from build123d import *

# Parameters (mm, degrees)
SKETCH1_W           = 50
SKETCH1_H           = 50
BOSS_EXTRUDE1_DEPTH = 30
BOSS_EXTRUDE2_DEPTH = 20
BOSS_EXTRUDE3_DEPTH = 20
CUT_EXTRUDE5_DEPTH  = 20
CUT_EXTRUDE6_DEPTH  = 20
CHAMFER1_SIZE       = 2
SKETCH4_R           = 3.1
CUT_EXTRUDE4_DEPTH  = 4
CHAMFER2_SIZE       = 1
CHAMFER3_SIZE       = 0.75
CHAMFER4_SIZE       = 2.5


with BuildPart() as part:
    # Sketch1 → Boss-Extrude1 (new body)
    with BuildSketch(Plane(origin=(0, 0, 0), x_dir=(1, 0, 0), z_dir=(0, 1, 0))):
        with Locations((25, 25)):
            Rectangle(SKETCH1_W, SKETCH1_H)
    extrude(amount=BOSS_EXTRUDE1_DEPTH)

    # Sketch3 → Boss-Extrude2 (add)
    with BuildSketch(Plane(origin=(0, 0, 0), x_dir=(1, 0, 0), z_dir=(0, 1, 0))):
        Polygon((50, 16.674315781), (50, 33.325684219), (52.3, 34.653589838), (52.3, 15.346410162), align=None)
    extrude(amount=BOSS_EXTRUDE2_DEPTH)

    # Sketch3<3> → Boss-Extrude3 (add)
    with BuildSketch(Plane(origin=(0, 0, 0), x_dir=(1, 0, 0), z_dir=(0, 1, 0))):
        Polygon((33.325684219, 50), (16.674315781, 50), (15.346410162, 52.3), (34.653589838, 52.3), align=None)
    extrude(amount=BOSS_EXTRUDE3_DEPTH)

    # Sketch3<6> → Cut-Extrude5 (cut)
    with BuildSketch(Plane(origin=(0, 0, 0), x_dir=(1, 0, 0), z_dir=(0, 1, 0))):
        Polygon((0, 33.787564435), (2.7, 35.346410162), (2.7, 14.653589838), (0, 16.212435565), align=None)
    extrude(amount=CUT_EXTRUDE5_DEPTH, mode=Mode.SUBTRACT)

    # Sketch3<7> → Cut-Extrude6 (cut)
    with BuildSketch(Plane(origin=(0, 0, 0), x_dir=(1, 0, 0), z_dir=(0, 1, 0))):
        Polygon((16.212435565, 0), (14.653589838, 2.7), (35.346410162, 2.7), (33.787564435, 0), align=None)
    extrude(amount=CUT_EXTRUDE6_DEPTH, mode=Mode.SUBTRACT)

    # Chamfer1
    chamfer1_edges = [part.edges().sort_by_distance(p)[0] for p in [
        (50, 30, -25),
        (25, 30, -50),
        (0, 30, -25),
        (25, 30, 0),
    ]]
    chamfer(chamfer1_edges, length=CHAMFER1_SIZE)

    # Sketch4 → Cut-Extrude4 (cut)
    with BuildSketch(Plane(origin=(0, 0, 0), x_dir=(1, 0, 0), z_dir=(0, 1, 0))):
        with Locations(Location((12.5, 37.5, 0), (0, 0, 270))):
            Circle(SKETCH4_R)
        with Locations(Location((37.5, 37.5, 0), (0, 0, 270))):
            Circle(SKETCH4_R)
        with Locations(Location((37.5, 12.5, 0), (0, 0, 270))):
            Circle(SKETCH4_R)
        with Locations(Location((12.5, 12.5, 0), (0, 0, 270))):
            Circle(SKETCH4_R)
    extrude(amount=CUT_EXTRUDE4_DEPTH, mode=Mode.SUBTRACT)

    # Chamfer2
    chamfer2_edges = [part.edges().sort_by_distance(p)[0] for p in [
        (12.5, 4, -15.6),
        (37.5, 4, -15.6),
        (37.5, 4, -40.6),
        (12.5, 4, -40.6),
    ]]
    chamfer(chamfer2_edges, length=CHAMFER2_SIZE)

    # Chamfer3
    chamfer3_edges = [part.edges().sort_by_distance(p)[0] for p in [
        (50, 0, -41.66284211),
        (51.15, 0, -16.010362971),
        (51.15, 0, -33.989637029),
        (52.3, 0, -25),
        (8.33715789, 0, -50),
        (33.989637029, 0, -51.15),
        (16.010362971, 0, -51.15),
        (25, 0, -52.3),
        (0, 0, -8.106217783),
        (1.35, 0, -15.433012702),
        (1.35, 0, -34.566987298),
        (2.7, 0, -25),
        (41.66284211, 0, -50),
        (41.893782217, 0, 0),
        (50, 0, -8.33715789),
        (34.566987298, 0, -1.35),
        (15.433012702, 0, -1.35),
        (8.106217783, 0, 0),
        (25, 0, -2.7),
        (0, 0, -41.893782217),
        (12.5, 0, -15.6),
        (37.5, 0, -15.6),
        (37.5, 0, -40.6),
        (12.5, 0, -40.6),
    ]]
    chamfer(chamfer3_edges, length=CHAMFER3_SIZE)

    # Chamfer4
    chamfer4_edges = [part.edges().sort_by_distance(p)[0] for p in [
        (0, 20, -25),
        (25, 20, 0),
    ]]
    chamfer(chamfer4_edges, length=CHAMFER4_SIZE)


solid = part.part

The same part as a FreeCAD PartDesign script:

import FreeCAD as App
import Part
import Sketcher
Q = App.Units.Quantity


def edges_at(feature, points):
    """Names of the edges that pass closest to the given points."""
    edges = feature.Shape.Edges
    near = lambda p: min(range(len(edges)), key=lambda i: edges[i].distToShape(Part.Vertex(*p))[0])
    return sorted({f"Edge{near(p) + 1}" for p in points})


def add_polygon(sketch, points):
    """Adds a closed chain of lines whose ends are joined by coincident constraints."""
    first, n = sketch.GeometryCount, len(points)
    for a, b in zip(points, points[1:] + points[:1]):
        sketch.addGeometry(Part.LineSegment(App.Vector(*a, 0), App.Vector(*b, 0)), False)
    for i in range(n):
        sketch.addConstraint(Sketcher.Constraint("Coincident", first + i, 2, first + (i + 1) % n, 1))

doc = App.newDocument("Part")
params = doc.addObject("Spreadsheet::Sheet", "Params")
for row, (alias, value) in enumerate([
    ("sketch1_width", "50 mm"),
    ("pad1_length", "30 mm"),
    ("pad2_length", "20 mm"),
    ("pad3_length", "20 mm"),
    ("pocket1_length", "20 mm"),
    ("pocket2_length", "20 mm"),
    ("chamfer_size", "2 mm"),
    ("sketch6_diameter", "6.2 mm"),
    ("pocket3_length", "4 mm"),
    ("chamfer2_size", "1 mm"),
    ("chamfer3_size", "0.75 mm"),
    ("chamfer4_size", "2.5 mm"),
], start=1):
    params.set(f"A{row}", alias)
    params.set(f"B{row}", "=" + value)
    params.setAlias(f"B{row}", alias)

body = doc.addObject("PartDesign::Body", "Body")

sketch1 = body.newObject("Sketcher::SketchObject", "Sketch")
sketch1.AttachmentSupport = (doc.getObject("XZ_Plane"), [""])
sketch1.MapMode = "FlatFace"
add_polygon(sketch1, [(0, -50), (0, 0), (50, 0), (50, -50)])
sketch1.addConstraint([
    Sketcher.Constraint("Vertical", 0),
    Sketcher.Constraint("Horizontal", 1),
    Sketcher.Constraint("Vertical", 2),
    Sketcher.Constraint("Horizontal", 3),
    Sketcher.Constraint("Coincident", 0, 2, -1, 1),
    Sketcher.Constraint("Equal", 3, 0),
    Sketcher.Constraint("DistanceX", 1, 1, 1, 2, 50.0),
])
sketch1.setExpression("Constraints[10]", "Params.sketch1_width")
pad1 = body.newObject("PartDesign::Pad", "Pad")
pad1.Profile = sketch1
pad1.setExpression("Length", "Params.pad1_length")
pad1.Reversed = True

sketch2 = body.newObject("Sketcher::SketchObject", "Sketch001")
sketch2.AttachmentSupport = (doc.getObject("XZ_Plane"), [""])
sketch2.MapMode = "FlatFace"
add_polygon(sketch2, [(50, -33.3), (50, -16.7), (52.3, -15.3), (52.3, -34.7)])
sketch2.addConstraint([
    Sketcher.Constraint("Vertical", 0),
    Sketcher.Constraint("Vertical", 2),
    Sketcher.Constraint("Equal", 1, 3),
    Sketcher.Constraint("Angle", 1, Q("30 deg")),
    Sketcher.Constraint("DistanceX", -1, 1, 0, 2, 50.0),
    Sketcher.Constraint("DistanceX", -1, 1, 1, 2, 52.3),
    Sketcher.Constraint("DistanceY", 0, 1, 0, 2, 16.651368),
    Sketcher.Constraint("DistanceY", 1, 2, -1, 1, 15.34641),
])
pad2 = body.newObject("PartDesign::Pad", "Pad001")
pad2.Profile = sketch2
pad2.setExpression("Length", "Params.pad2_length")
pad2.Reversed = True

sketch3 = body.newObject("Sketcher::SketchObject", "Sketch002")
sketch3.AttachmentSupport = (doc.getObject("XZ_Plane"), [""])
sketch3.MapMode = "FlatFace"
add_polygon(sketch3, [(16.7, -50), (33.3, -50), (34.7, -52.3), (15.3, -52.3)])
sketch3.addConstraint([
    Sketcher.Constraint("Horizontal", 0),
    Sketcher.Constraint("Horizontal", 2),
    Sketcher.Constraint("Equal", 1, 3),
    Sketcher.Constraint("Angle", 1, Q("-60 deg")),
    Sketcher.Constraint("DistanceY", 0, 2, -1, 1, 50.0),
    Sketcher.Constraint("DistanceY", 1, 2, -1, 1, 52.3),
    Sketcher.Constraint("DistanceX", 0, 1, 0, 2, 16.651368),
    Sketcher.Constraint("DistanceX", -1, 1, 1, 2, 34.65359),
])
pad3 = body.newObject("PartDesign::Pad", "Pad002")
pad3.Profile = sketch3
pad3.setExpression("Length", "Params.pad3_length")
pad3.Reversed = True

sketch4 = body.newObject("Sketcher::SketchObject", "Sketch003")
sketch4.AttachmentSupport = (doc.getObject("XZ_Plane"), [""])
sketch4.MapMode = "FlatFace"
add_polygon(sketch4, [(2.7, -35.3), (0, -33.8), (0, -16.2), (2.7, -14.7)])
sketch4.addConstraint([
    Sketcher.Constraint("Vertical", 1),
    Sketcher.Constraint("Vertical", 3),
    Sketcher.Constraint("PointOnObject", 0, 2, -2),
    Sketcher.Constraint("Equal", 0, 2),
    Sketcher.Constraint("Angle", 0, Q("150 deg")),
    Sketcher.Constraint("DistanceX", -1, 1, 2, 2, 2.7),
    Sketcher.Constraint("DistanceY", 1, 1, 1, 2, 17.575129),
    Sketcher.Constraint("DistanceY", 2, 2, -1, 1, 14.65359),
])
pocket1 = body.newObject("PartDesign::Pocket", "Pocket")
pocket1.Profile = sketch4
pocket1.setExpression("Length", "Params.pocket1_length")

sketch5 = body.newObject("Sketcher::SketchObject", "Sketch004")
sketch5.AttachmentSupport = (doc.getObject("XZ_Plane"), [""])
sketch5.MapMode = "FlatFace"
add_polygon(sketch5, [(14.7, -2.7), (16.2, 0), (33.8, 0), (35.3, -2.7)])
sketch5.addConstraint([
    Sketcher.Constraint("Horizontal", 1),
    Sketcher.Constraint("Horizontal", 3),
    Sketcher.Constraint("PointOnObject", 0, 2, -1),
    Sketcher.Constraint("Equal", 0, 2),
    Sketcher.Constraint("Angle", 0, Q("60 deg")),
    Sketcher.Constraint("DistanceY", 2, 2, -1, 1, 2.7),
    Sketcher.Constraint("DistanceX", 1, 1, 1, 2, 17.575129),
    Sketcher.Constraint("DistanceX", -1, 1, 2, 2, 35.34641),
])
pocket2 = body.newObject("PartDesign::Pocket", "Pocket001")
pocket2.Profile = sketch5
pocket2.setExpression("Length", "Params.pocket2_length")
doc.recompute()

chamfer = body.newObject("PartDesign::Chamfer", "Chamfer")
chamfer.Base = (pocket2, edges_at(pocket2, [
    (50, 30, -25),
    (25, 30, -50),
    (0, 30, -25),
    (25, 30, 0),
]))
chamfer.setExpression("Size", "Params.chamfer_size")

sketch6 = body.newObject("Sketcher::SketchObject", "Sketch005")
sketch6.AttachmentSupport = (doc.getObject("XZ_Plane"), [""])
sketch6.MapMode = "FlatFace"
sketch6.addGeometry([
    Part.Circle(App.Vector(12.5, -37.5, 0), App.Vector(0, 0, 1), 3.1),
    Part.Circle(App.Vector(37.5, -37.5, 0), App.Vector(0, 0, 1), 3.1),
    Part.Circle(App.Vector(37.5, -12.5, 0), App.Vector(0, 0, 1), 3.1),
    Part.Circle(App.Vector(12.5, -12.5, 0), App.Vector(0, 0, 1), 3.1),
], False)
sketch6.addConstraint([
    Sketcher.Constraint("Equal", 0, 1),
    Sketcher.Constraint("Equal", 1, 2),
    Sketcher.Constraint("Equal", 2, 3),
    Sketcher.Constraint("Horizontal", 0, 3, 1, 3),
    Sketcher.Constraint("Horizontal", 2, 3, 3, 3),
    Sketcher.Constraint("Vertical", 1, 3, 2, 3),
    Sketcher.Constraint("Vertical", 0, 3, 3, 3),
    Sketcher.Constraint("Diameter", 0, 6.2),
    Sketcher.Constraint("DistanceX", 0, 3, 1, 3, 25.0),
    Sketcher.Constraint("DistanceY", 1, 3, 2, 3, 25.0),
    Sketcher.Constraint("DistanceX", -1, 1, 0, 3, 12.5),
    Sketcher.Constraint("DistanceY", 0, 3, -1, 1, 37.5),
])
sketch6.setExpression("Constraints[7]", "Params.sketch6_diameter")
pocket3 = body.newObject("PartDesign::Pocket", "Pocket002")
pocket3.Profile = sketch6
pocket3.setExpression("Length", "Params.pocket3_length")
doc.recompute()

chamfer2 = body.newObject("PartDesign::Chamfer", "Chamfer001")
chamfer2.Base = (pocket3, edges_at(pocket3, [
    (12.5, 4, -15.6),
    (37.5, 4, -15.6),
    (37.5, 4, -40.6),
    (12.5, 4, -40.6),
]))
chamfer2.setExpression("Size", "Params.chamfer2_size")
doc.recompute()

chamfer3 = body.newObject("PartDesign::Chamfer", "Chamfer002")
chamfer3.Base = (chamfer2, edges_at(chamfer2, [
    (50, 0, -41.663),
    (51.15, 0, -16.01),
    (51.15, 0, -33.99),
    (52.3, 0, -25),
    (8.337, 0, -50),
    (33.99, 0, -51.15),
    (16.01, 0, -51.15),
    (25, 0, -52.3),
    (0, 0, -8.106),
    (1.35, 0, -15.433),
    (1.35, 0, -34.567),
    (2.7, 0, -25),
    (41.663, 0, -50),
    (41.894, 0, 0),
    (50, 0, -8.337),
    (34.567, 0, -1.35),
    (15.433, 0, -1.35),
    (8.106, 0, 0),
    (25, 0, -2.7),
    (0, 0, -41.894),
    (12.5, 0, -15.6),
    (37.5, 0, -15.6),
    (37.5, 0, -40.6),
    (12.5, 0, -40.6),
]))
chamfer3.setExpression("Size", "Params.chamfer3_size")
doc.recompute()

chamfer4 = body.newObject("PartDesign::Chamfer", "Chamfer003")
chamfer4.Base = (chamfer3, edges_at(chamfer3, [(0, 20, -25), (25, 20, 0)]))
chamfer4.setExpression("Size", "Params.chamfer4_size")

doc.recompute()
